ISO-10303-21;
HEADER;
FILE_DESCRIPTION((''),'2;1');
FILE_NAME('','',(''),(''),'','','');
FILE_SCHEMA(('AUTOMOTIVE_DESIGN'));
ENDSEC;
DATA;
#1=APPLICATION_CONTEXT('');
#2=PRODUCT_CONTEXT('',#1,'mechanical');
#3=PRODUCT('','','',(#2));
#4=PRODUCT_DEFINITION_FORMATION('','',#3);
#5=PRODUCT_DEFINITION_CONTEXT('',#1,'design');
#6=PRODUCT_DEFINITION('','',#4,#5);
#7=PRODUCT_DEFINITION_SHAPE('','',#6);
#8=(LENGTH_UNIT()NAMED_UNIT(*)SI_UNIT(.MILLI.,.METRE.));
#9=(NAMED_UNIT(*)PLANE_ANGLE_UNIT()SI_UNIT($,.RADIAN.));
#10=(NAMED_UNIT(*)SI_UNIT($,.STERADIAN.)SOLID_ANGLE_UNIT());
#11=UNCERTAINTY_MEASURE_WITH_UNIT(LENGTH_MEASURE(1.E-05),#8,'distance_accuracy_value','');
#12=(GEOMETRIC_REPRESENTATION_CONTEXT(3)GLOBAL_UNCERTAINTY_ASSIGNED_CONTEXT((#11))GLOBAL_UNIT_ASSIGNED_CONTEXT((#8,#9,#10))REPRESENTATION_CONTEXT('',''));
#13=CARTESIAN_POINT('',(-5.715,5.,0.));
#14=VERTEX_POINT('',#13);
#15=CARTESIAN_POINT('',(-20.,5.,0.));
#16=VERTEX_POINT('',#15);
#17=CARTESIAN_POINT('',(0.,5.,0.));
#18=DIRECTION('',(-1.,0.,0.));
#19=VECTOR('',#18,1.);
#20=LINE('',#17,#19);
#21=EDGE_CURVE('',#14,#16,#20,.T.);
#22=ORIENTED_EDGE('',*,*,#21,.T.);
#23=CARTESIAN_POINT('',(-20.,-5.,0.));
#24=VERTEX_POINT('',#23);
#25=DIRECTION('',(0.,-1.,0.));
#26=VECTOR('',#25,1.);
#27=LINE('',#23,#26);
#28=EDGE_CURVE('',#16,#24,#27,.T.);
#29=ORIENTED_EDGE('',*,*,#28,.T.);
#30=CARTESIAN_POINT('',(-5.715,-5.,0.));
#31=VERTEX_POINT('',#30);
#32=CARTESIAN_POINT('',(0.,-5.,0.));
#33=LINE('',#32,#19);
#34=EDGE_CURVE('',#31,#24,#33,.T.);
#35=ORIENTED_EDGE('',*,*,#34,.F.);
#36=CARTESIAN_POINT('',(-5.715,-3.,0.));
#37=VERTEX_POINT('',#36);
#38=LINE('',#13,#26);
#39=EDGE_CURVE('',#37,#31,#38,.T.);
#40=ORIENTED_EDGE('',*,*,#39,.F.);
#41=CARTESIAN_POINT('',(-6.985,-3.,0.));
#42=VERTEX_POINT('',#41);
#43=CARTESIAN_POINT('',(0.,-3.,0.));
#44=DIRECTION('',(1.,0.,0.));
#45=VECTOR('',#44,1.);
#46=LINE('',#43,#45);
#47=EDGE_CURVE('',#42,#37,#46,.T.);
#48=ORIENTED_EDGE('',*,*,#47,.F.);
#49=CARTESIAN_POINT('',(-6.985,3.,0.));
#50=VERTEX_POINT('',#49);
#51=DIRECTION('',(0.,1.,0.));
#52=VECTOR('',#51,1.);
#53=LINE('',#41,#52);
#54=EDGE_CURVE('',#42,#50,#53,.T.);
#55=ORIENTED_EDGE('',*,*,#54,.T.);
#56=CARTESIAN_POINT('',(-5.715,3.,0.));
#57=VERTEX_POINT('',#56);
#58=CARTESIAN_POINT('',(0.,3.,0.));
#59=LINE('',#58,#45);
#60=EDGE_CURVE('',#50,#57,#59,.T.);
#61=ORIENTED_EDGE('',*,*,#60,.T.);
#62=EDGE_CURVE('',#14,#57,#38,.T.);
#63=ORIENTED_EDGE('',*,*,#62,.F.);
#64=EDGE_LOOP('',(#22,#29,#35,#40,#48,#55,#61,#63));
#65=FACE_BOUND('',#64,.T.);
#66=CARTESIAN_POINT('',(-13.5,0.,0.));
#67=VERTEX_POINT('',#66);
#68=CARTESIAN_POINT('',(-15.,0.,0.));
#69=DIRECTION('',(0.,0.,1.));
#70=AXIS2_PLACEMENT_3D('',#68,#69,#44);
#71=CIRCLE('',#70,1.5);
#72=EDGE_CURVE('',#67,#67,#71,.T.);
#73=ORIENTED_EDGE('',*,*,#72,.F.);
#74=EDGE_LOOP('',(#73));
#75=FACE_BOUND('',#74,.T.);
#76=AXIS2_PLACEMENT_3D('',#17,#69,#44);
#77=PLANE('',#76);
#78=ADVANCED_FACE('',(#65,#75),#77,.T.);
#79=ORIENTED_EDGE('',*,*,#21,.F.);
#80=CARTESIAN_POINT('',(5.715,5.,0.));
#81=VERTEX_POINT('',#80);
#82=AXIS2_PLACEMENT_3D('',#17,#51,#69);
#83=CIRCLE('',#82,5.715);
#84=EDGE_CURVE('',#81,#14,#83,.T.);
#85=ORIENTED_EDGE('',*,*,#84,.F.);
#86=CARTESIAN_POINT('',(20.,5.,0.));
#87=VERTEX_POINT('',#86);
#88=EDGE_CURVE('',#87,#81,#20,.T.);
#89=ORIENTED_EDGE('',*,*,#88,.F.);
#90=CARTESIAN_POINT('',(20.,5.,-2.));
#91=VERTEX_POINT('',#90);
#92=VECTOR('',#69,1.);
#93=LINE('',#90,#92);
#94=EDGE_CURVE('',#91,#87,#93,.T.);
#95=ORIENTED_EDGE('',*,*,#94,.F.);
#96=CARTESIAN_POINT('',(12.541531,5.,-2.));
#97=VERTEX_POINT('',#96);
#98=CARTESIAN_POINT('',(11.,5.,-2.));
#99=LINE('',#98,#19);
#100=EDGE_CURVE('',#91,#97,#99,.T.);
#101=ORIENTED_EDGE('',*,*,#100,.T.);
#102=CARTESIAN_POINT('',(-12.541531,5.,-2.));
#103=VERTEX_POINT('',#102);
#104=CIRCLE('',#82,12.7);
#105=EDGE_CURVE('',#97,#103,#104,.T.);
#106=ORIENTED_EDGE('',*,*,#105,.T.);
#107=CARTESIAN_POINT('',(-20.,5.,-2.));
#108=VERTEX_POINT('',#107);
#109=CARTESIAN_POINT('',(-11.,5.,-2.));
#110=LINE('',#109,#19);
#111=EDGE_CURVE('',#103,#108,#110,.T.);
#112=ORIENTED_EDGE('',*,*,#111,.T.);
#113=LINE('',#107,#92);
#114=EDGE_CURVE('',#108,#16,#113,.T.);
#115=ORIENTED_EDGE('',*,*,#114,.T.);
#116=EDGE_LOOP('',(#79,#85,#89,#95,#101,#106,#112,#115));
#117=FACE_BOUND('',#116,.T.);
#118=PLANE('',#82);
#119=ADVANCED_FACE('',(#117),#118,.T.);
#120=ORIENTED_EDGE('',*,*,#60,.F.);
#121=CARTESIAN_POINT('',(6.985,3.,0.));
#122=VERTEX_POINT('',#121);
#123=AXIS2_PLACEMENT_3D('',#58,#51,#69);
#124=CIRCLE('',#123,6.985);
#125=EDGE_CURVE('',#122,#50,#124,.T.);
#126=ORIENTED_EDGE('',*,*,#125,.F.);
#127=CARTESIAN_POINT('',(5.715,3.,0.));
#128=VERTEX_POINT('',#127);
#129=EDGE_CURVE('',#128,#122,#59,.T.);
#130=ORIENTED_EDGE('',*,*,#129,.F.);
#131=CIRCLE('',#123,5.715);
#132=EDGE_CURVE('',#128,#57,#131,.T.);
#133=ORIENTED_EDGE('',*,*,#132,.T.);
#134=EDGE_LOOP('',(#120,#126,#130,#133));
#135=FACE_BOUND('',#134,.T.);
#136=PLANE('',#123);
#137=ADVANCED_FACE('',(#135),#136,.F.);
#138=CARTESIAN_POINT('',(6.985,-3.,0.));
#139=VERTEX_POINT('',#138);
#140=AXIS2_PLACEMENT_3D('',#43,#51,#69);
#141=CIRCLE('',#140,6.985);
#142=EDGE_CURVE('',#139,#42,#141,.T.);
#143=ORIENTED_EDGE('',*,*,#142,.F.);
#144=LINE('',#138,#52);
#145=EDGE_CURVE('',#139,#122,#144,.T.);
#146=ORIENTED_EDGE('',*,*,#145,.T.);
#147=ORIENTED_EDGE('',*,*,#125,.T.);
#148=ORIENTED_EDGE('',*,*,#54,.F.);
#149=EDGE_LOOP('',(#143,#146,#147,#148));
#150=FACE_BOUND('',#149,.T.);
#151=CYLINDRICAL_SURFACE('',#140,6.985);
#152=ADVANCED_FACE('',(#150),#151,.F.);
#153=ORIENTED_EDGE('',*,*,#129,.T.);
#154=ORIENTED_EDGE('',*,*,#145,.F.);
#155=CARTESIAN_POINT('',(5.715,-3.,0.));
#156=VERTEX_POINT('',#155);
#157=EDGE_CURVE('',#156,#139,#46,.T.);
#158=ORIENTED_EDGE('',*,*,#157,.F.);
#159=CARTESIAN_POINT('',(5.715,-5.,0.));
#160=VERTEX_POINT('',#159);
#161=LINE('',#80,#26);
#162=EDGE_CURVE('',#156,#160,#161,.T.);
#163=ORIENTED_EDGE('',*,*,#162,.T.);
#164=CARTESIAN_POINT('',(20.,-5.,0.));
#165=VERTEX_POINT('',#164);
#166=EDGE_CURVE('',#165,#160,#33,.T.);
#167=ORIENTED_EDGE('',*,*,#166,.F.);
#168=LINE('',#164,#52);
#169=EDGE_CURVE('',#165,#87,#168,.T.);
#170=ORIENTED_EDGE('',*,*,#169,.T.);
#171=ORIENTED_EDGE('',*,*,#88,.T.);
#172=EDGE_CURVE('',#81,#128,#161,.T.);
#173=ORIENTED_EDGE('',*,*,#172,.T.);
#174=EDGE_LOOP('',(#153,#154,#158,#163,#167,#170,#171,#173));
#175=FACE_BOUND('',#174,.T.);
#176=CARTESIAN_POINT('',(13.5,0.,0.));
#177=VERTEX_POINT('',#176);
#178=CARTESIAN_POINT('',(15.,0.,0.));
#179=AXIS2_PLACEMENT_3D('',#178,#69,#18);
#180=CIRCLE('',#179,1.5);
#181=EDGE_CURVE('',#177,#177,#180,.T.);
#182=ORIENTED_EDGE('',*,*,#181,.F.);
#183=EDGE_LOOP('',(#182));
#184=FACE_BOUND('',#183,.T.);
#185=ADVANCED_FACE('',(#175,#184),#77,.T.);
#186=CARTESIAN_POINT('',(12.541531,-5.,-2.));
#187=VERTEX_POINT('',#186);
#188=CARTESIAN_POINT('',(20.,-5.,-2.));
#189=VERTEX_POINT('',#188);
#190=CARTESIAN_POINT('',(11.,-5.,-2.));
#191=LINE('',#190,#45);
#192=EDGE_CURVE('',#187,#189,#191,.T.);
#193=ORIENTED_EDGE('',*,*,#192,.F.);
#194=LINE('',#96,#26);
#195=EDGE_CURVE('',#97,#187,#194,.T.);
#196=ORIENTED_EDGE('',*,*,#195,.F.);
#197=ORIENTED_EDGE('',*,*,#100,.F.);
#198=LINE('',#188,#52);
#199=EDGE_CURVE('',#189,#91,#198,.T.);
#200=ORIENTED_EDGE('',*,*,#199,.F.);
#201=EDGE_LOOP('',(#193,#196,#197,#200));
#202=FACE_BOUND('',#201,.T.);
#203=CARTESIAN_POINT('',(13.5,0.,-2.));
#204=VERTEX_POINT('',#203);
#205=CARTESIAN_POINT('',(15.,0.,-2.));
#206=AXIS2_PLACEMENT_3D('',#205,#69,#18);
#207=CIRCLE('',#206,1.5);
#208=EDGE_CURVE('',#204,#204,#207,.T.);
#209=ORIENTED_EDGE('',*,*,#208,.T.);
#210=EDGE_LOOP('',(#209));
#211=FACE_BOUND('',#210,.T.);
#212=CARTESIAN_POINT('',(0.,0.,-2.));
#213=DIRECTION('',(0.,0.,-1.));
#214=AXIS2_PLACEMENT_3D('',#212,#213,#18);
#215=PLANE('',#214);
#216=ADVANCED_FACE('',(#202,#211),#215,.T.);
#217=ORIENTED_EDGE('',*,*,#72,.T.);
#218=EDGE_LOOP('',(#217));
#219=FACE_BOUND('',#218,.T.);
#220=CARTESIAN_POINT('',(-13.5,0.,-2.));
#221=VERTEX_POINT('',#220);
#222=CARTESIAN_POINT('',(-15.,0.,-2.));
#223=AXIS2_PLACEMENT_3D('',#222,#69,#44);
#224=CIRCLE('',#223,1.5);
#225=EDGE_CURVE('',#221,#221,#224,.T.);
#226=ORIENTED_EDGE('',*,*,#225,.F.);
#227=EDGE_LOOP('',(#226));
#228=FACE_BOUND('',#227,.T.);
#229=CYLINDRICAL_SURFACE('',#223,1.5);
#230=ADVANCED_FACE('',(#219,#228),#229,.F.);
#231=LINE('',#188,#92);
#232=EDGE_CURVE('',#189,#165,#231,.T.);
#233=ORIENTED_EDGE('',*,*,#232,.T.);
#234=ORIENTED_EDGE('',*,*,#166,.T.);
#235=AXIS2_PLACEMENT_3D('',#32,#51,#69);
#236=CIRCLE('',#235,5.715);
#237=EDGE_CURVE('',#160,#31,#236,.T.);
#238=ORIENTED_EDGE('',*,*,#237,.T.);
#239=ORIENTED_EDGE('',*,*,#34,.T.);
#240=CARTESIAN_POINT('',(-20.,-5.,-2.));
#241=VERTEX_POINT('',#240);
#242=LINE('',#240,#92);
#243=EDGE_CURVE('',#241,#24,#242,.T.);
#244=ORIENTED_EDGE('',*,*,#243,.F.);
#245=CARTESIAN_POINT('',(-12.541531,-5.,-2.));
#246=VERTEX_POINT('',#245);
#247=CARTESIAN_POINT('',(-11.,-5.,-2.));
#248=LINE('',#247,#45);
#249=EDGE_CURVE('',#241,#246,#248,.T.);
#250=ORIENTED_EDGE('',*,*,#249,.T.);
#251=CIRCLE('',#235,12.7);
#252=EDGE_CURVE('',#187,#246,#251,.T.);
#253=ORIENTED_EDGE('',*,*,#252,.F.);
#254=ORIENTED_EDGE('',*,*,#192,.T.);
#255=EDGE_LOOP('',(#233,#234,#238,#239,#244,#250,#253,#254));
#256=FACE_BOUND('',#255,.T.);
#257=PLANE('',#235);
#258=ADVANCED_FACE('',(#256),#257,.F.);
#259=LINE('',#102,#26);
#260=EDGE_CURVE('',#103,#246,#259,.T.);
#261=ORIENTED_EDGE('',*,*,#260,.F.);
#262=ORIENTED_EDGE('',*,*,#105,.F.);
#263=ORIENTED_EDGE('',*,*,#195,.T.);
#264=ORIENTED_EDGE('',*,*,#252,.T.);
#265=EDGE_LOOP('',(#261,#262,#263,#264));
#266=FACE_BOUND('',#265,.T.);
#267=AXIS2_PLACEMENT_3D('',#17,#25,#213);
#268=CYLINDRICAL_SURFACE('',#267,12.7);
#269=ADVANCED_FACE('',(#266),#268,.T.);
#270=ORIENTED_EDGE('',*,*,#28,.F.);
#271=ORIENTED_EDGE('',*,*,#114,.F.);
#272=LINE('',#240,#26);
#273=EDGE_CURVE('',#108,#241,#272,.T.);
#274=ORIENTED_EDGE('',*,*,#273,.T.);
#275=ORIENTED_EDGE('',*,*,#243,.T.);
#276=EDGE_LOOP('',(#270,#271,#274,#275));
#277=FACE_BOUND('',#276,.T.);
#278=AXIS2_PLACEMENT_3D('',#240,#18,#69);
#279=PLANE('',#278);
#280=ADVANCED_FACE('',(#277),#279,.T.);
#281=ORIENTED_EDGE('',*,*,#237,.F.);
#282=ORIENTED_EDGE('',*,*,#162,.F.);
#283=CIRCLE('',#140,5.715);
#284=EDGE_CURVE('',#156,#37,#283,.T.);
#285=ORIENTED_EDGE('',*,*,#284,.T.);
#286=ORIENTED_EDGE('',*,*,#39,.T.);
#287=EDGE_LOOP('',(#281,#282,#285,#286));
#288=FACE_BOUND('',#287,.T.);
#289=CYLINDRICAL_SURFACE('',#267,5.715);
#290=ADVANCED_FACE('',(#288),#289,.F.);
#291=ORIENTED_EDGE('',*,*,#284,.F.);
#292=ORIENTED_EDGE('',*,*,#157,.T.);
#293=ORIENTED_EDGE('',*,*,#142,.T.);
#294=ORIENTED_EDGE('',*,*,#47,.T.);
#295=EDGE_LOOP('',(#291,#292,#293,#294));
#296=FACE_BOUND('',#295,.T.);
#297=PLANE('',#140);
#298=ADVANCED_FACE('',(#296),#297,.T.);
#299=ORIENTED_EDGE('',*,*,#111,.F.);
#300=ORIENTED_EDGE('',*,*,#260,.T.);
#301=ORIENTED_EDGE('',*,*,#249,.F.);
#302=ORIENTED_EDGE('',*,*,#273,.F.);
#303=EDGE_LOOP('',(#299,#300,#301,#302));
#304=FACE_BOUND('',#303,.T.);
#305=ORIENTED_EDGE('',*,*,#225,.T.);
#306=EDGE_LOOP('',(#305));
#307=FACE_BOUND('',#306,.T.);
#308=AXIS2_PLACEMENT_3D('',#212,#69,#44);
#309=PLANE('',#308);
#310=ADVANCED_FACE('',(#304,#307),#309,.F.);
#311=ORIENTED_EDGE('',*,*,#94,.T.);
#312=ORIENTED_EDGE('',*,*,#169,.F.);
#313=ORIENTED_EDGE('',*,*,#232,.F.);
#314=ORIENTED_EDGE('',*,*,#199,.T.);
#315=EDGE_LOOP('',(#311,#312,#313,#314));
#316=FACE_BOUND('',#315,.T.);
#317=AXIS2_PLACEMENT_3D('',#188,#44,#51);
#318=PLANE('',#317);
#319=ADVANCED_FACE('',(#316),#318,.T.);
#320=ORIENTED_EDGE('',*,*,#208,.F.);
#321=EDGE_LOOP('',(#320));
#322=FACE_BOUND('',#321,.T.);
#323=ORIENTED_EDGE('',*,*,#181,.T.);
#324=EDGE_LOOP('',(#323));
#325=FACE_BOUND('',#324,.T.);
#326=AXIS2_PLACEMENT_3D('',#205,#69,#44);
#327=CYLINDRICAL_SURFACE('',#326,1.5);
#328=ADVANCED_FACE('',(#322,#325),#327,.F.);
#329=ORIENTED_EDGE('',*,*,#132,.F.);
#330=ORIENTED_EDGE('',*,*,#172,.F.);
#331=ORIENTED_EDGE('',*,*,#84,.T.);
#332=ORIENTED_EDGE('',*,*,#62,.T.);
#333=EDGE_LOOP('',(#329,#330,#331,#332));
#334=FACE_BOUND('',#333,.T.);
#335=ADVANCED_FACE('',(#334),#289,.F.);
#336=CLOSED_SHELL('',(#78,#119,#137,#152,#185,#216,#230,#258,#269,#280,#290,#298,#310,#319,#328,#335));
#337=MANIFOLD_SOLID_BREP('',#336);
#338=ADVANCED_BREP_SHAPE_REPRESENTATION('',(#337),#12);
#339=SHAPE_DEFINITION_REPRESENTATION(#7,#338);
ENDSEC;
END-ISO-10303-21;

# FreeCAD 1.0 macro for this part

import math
import FreeCAD as App
import Part
import Sketcher
from FreeCAD import Vector


def add_polygon(sketch, points):
    """Adds a closed chain of lines whose ends are joined by coincident constraints."""
    first, n = sketch.GeometryCount, len(points)
    for a, b in zip(points, points[1:] + points[:1]):
        sketch.addGeometry(Part.LineSegment(App.Vector(*a, 0), App.Vector(*b, 0)), False)
    for i in range(n):
        sketch.addConstraint(Sketcher.Constraint("Coincident", first + i, 2, first + (i + 1) % n, 1))

doc = App.newDocument("Part")
body = doc.addObject("PartDesign::Body", "Body")

# Sketch on XZ plane
sketch1 = body.newObject("Sketcher::SketchObject", "Sketch")
sketch1.AttachmentSupport = (doc.getObject("XZ_Plane"), [""])
sketch1.MapMode = "FlatFace"
sketch1.addGeometry(Part.LineSegment(Vector(6, 0, 0), Vector(13, 0, 0)), False)
sketch1.addGeometry(Part.ArcOfCircle(Part.Circle(Vector(0, 0, 0), Vector(0, 0, 1), 13), math.radians(180), math.radians(360)), False)
sketch1.addGeometry(Part.LineSegment(Vector(-13, 0, 0), Vector(-6, 0, 0)), False)
sketch1.addGeometry(Part.ArcOfCircle(Part.Circle(Vector(0, 0, 0), Vector(0, 0, 1), 6), math.radians(180), math.radians(360)), False)
sketch1.addConstraint(Sketcher.Constraint("Coincident", 0, 2, 1, 2))
sketch1.addConstraint(Sketcher.Constraint("Coincident", 1, 1, 2, 1))
sketch1.addConstraint(Sketcher.Constraint("Coincident", 2, 2, 3, 1))
sketch1.addConstraint(Sketcher.Constraint("Coincident", 3, 2, 0, 1))
sketch1.addConstraint(Sketcher.Constraint("Horizontal", 0))
sketch1.addConstraint(Sketcher.Constraint("Horizontal", 2))
sketch1.addConstraint(Sketcher.Constraint("Coincident", 1, 3, -1, 1))
sketch1.addConstraint(Sketcher.Constraint("Coincident", 3, 3, -1, 1))
sketch1.addConstraint(Sketcher.Constraint("PointOnObject", 0, 2, -1))
sketch1.addConstraint(Sketcher.Constraint("PointOnObject", 1, 1, -1))
sketch1.addConstraint(Sketcher.Constraint("Radius", 1, 12.7))
sketch1.addConstraint(Sketcher.Constraint("Radius", 3, 5.715))
pad1 = body.newObject("PartDesign::Pad", "Pad")
pad1.Profile = sketch1
pad1.Length = 10
pad1.Midplane = True

# Sketch on XZ plane
sketch2 = body.newObject("Sketcher::SketchObject", "Sketch001")
sketch2.AttachmentSupport = (doc.getObject("XZ_Plane"), [""])
sketch2.MapMode = "FlatFace"
sketch2.addGeometry(Part.Circle(Vector(0, 0, 0), Vector(0, 0, 1), 7), False)
sketch2.addConstraint(Sketcher.Constraint("Coincident", 0, 3, -1, 1))
sketch2.addConstraint(Sketcher.Constraint("Diameter", 0, 13.97))
pocket1 = body.newObject("PartDesign::Pocket", "Pocket")
pocket1.Profile = sketch2
pocket1.Length = 6
pocket1.Midplane = True

# Sketch on XY plane
sketch3 = body.newObject("Sketcher::SketchObject", "Sketch002")
sketch3.AttachmentSupport = (doc.getObject("XY_Plane"), [""])
sketch3.MapMode = "FlatFace"
add_polygon(sketch3, [(11, 5), (11, -5), (20, -5), (20, 5)])  # lines 0-3
sketch3.addGeometry(Part.Circle(Vector(15, 0, 0), Vector(0, 0, 1), 1.5), False)  # 4
add_polygon(sketch3, [(-20, 5), (-20, -5), (-11, -5), (-11, 5)])  # lines 5-8
sketch3.addGeometry(Part.Circle(Vector(-15, 0, 0), Vector(0, 0, 1), 1.5), False)  # 9
sketch3.addConstraint(Sketcher.Constraint("Vertical", 0))
sketch3.addConstraint(Sketcher.Constraint("Horizontal", 1))
sketch3.addConstraint(Sketcher.Constraint("Vertical", 2))
sketch3.addConstraint(Sketcher.Constraint("Horizontal", 3))
sketch3.addConstraint(Sketcher.Constraint("Vertical", 5))
sketch3.addConstraint(Sketcher.Constraint("Horizontal", 6))
sketch3.addConstraint(Sketcher.Constraint("Vertical", 7))
sketch3.addConstraint(Sketcher.Constraint("Horizontal", 8))
sketch3.addConstraint(Sketcher.Constraint("Equal", 4, 9))
sketch3.addConstraint(Sketcher.Constraint("Symmetric", 4, 3, 9, 3, -1, 1))
sketch3.addConstraint(Sketcher.Constraint("Symmetric", 2, 2, 5, 2, -1, 1))
sketch3.addConstraint(Sketcher.Constraint("Symmetric", 0, 2, 7, 2, -1, 1))
sketch3.addConstraint(Sketcher.Constraint("PointOnObject", 4, 3, -1))
sketch3.addConstraint(Sketcher.Constraint("Horizontal", 1, 2, 5, 2))
sketch3.addConstraint(Sketcher.Constraint("Diameter", 4, 3.0))
sketch3.addConstraint(Sketcher.Constraint("DistanceX", 1, 1, 1, 2, 9.0))
sketch3.addConstraint(Sketcher.Constraint("DistanceY", 0, 2, 0, 1, 10.0))
sketch3.addConstraint(Sketcher.Constraint("DistanceX", -1, 1, 4, 3, 15.0))
sketch3.addConstraint(Sketcher.Constraint("DistanceX", -1, 1, 0, 2, 11.0))
pad2 = body.newObject("PartDesign::Pad", "Pad001")
pad2.Profile = sketch3
pad2.Length = 2
pad2.Reversed = True

doc.recompute()
